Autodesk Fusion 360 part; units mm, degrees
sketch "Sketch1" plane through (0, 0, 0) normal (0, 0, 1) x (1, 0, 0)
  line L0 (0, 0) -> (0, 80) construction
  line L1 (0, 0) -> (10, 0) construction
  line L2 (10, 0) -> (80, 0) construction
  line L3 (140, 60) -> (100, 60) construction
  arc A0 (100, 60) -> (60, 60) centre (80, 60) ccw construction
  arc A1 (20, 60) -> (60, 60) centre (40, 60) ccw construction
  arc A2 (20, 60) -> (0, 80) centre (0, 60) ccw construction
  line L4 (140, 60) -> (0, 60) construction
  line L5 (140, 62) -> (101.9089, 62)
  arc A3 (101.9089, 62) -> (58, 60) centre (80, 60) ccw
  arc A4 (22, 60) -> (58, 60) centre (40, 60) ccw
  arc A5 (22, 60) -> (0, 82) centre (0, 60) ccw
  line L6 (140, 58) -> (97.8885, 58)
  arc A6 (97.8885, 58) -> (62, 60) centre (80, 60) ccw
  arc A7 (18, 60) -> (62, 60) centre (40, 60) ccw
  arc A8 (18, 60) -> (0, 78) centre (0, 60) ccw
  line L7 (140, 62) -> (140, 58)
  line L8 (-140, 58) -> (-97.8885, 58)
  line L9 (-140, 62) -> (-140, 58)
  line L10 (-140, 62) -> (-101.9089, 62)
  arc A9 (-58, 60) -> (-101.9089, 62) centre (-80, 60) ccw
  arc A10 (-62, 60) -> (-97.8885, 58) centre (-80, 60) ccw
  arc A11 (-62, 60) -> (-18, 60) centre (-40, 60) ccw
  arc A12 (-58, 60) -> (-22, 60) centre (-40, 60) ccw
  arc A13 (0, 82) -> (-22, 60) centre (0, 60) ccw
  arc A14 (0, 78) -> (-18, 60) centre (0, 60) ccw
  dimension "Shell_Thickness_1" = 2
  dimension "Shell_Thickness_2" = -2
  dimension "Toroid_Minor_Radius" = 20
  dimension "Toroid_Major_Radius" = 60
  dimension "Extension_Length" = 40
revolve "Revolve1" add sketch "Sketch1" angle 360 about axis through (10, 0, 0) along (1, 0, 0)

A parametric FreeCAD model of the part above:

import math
import FreeCAD as App
import Part
import Sketcher

V = App.Vector

doc = App.newDocument("Part")
body = doc.addObject("PartDesign::Body", "Body")

# Sketch on XY plane
sketch1 = doc.addObject("Sketcher::SketchObject", "Sketch")
body.addObject(sketch1)
sketch1.AttachmentSupport = (doc.XY_Plane, [""])
sketch1.MapMode = "FlatFace"
sketch1.addGeometry([
    Part.LineSegment(V(140, 58, 0), V(140, 62, 0)),  # 0
    Part.LineSegment(V(140, 62, 0), V(101.9089, 62, 0)),  # 1
    Part.ArcOfCircle(Part.Circle(V(80, 60, 0), V(0, 0, 1), 21.999998), math.radians(5.215909), math.radians(180)),  # 2
    Part.ArcOfCircle(Part.Circle(V(40, 60, 0), V(0, 0, 1), 18), math.radians(180), math.radians(360)),  # 3
    Part.ArcOfCircle(Part.Circle(V(0, 60, 0), V(0, 0, 1), 22), math.radians(0), math.radians(180)),  # 4
    Part.ArcOfCircle(Part.Circle(V(-40, 60, 0), V(0, 0, 1), 18), math.radians(180), math.radians(360)),  # 5
    Part.ArcOfCircle(Part.Circle(V(-80, 60, 0), V(0, 0, 1), 22), math.radians(0), math.radians(174.784091)),  # 6
    Part.LineSegment(V(-101.9089, 62, 0), V(-140, 62, 0)),  # 7
    Part.LineSegment(V(-140, 62, 0), V(-140, 58, 0)),  # 8
    Part.LineSegment(V(-140, 58, 0), V(-97.8885, 58, 0)),  # 9
    Part.ArcOfCircle(Part.Circle(V(-80, 60, 0), V(0, 0, 1), 18), math.radians(0), math.radians(186.379386)),  # 10
    Part.ArcOfCircle(Part.Circle(V(-40, 60, 0), V(0, 0, 1), 22), math.radians(180), math.radians(360)),  # 11
    Part.ArcOfCircle(Part.Circle(V(0, 60, 0), V(0, 0, 1), 18), math.radians(0), math.radians(180)),  # 12
    Part.ArcOfCircle(Part.Circle(V(40, 60, 0), V(0, 0, 1), 22), math.radians(180), math.radians(360)),  # 13
    Part.ArcOfCircle(Part.Circle(V(80, 60, 0), V(0, 0, 1), 17.999956), math.radians(-6.379386), math.radians(180)),  # 14
    Part.LineSegment(V(97.8885, 58, 0), V(140, 58, 0)),  # 15
], False)
sketch1.addConstraint([
    Sketcher.Constraint("Coincident", 0, 2, 1, 1),
    Sketcher.Constraint("Coincident", 1, 2, 2, 1),
    Sketcher.Constraint("Tangent", 2, 2, 3, 2),
    Sketcher.Constraint("Tangent", 3, 1, 4, 1),
    Sketcher.Constraint("Tangent", 4, 2, 5, 2),
    Sketcher.Constraint("Tangent", 5, 1, 6, 1),
    Sketcher.Constraint("Coincident", 6, 2, 7, 1),
    Sketcher.Constraint("Coincident", 7, 2, 8, 1),
    Sketcher.Constraint("Coincident", 8, 2, 9, 1),
    Sketcher.Constraint("Coincident", 9, 2, 10, 2),
    Sketcher.Constraint("Tangent", 10, 1, 11, 1),
    Sketcher.Constraint("Tangent", 11, 2, 12, 2),
    Sketcher.Constraint("Tangent", 12, 1, 13, 1),
    Sketcher.Constraint("Tangent", 13, 2, 14, 2),
    Sketcher.Constraint("Coincident", 14, 1, 15, 1),
    Sketcher.Constraint("Coincident", 15, 2, 0, 1),
    Sketcher.Constraint("Vertical", 0),
    Sketcher.Constraint("Horizontal", 1),
    Sketcher.Constraint("Horizontal", 7),
    Sketcher.Constraint("Vertical", 8),
    Sketcher.Constraint("Horizontal", 9),
    Sketcher.Constraint("Horizontal", 15),
    Sketcher.Constraint("Coincident", 10, 3, 6, 3),
    Sketcher.Constraint("Coincident", 11, 3, 5, 3),
    Sketcher.Constraint("Coincident", 12, 3, 4, 3),
    Sketcher.Constraint("Coincident", 13, 3, 3, 3),
    Sketcher.Constraint("Coincident", 14, 3, 2, 3),
    Sketcher.Constraint("Equal", 2, 4),
    Sketcher.Constraint("Equal", 3, 5),
    Sketcher.Constraint("Equal", 4, 6),
    Sketcher.Constraint("Equal", 5, 10),
    Sketcher.Constraint("Symmetric", 3, 3, 5, 3, -2),
    Sketcher.Constraint("Symmetric", 1, 2, 6, 2, -2),
    Sketcher.Constraint("Symmetric", 8, 2, 15, 2, -2),
    Sketcher.Constraint("Horizontal", 2, 3, 3, 3),
    Sketcher.Constraint("Horizontal", 3, 3, 4, 3),
    Sketcher.Constraint("DistanceY", -1, 1, 2, 3, 60.0),
    Sketcher.Constraint("DistanceX", -1, 1, 3, 3, 40.0),
    Sketcher.Constraint("Radius", 2, 22.0),
    Sketcher.Constraint("DistanceX", 2, 3, 0, 2, 60.0),
    Sketcher.Constraint("DistanceY", 2, 3, 0, 2, 2.0),
    Sketcher.Constraint("DistanceY", 8, 2, 6, 3, 2.0),
])
revolution = doc.addObject("PartDesign::Revolution", "Revolution")
body.addObject(revolution)
revolution.Profile = sketch1
revolution.ReferenceAxis = (sketch1, ["H_Axis"])
revolution.Angle = 360

doc.recompute()
